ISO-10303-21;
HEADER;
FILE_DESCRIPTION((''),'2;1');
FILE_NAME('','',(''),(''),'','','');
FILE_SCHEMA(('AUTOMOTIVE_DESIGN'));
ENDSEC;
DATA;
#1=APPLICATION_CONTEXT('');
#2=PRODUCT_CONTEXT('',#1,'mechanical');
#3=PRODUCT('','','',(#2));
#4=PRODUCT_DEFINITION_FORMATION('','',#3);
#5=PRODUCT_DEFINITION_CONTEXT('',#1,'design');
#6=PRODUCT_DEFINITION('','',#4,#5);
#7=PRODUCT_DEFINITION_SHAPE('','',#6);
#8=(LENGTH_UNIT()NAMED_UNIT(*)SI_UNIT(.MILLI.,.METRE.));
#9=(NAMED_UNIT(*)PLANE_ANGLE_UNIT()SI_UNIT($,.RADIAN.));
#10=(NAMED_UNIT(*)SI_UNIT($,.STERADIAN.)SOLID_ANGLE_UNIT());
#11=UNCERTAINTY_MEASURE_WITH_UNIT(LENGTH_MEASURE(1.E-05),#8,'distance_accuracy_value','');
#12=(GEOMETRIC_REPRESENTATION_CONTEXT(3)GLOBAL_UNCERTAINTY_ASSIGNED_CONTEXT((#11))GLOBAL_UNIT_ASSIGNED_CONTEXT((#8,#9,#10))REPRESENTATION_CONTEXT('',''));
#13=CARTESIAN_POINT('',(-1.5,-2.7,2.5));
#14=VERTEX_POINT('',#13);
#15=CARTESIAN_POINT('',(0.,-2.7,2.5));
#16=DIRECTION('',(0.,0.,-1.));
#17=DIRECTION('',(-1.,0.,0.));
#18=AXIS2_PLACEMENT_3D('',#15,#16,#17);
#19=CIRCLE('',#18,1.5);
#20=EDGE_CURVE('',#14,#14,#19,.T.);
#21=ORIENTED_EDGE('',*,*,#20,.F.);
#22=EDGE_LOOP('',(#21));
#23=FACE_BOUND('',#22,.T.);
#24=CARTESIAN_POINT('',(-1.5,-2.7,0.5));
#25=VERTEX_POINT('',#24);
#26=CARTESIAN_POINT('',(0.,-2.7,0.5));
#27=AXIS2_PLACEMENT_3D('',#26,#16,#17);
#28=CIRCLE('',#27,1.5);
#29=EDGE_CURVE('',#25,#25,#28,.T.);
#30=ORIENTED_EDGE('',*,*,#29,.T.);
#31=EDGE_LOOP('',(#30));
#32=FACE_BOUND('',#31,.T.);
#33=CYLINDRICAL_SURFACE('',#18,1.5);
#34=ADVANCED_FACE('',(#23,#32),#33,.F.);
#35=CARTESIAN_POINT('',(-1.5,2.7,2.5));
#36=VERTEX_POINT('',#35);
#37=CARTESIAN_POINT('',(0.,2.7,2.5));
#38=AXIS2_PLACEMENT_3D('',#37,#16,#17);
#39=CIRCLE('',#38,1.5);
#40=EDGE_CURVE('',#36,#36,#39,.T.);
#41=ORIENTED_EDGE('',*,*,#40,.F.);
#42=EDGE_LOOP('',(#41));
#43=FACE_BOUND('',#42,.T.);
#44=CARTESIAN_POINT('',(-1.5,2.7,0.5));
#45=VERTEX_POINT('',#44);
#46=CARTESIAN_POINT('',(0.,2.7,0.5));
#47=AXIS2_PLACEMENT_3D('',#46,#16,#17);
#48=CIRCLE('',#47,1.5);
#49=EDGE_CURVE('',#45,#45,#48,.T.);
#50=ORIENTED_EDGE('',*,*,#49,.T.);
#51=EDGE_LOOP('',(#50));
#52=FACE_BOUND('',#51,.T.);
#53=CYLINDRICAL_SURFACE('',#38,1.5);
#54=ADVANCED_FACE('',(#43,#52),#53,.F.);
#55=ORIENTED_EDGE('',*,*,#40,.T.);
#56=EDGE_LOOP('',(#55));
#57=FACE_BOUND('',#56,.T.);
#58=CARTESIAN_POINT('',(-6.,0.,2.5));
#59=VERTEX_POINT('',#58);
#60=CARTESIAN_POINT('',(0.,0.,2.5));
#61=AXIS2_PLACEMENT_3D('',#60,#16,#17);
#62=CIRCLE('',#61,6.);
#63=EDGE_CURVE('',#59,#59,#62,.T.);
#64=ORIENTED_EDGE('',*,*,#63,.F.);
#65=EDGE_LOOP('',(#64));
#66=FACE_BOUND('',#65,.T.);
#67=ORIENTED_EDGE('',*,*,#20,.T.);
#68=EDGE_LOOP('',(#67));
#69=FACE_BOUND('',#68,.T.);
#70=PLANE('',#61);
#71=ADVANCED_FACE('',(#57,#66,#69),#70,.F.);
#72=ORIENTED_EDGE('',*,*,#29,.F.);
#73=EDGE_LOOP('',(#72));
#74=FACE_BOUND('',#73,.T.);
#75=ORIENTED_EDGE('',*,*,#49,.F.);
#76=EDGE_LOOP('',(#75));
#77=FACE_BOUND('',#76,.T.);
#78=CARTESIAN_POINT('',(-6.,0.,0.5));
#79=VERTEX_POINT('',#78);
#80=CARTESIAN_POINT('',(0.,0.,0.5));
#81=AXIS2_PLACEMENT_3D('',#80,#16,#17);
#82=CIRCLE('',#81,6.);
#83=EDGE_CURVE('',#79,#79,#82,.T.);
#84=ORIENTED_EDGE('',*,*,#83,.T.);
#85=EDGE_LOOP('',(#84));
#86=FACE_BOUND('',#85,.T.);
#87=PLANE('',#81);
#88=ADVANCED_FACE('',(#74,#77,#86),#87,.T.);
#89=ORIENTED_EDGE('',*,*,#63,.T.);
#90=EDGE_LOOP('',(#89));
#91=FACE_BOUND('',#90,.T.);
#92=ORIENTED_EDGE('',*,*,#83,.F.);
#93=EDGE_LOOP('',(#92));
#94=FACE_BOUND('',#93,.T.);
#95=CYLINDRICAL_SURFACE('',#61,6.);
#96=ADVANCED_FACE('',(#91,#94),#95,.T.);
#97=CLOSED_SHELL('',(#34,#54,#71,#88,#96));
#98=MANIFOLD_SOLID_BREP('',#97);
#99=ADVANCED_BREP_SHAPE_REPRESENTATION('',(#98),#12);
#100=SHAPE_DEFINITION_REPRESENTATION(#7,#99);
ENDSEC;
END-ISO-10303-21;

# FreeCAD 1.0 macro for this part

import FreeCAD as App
import Part
import Sketcher

V = App.Vector
Q = App.Units.Quantity

doc = App.newDocument("Part")
params = doc.addObject("Spreadsheet::Sheet", "Params")
for row, (alias, value) in enumerate([
    ("sketch1_diameter", "12 mm"),
    ("sketch1_diameter2", "3 mm"),
    ("pad1_length", "2 mm"),
], start=1):
    params.set(f"A{row}", alias)
    params.set(f"B{row}", "=" + value)
    params.setAlias(f"B{row}", alias)

body = doc.addObject("PartDesign::Body", "Body")

sketch1 = body.newObject("Sketcher::SketchObject", "Sketch")
sketch1.AttachmentSupport = (doc.getObject("XY_Plane"), [""])
sketch1.MapMode = "FlatFace"
sketch1.AttachmentOffset = App.Placement(V(0, 0, 0.5), App.Rotation())
sketch1.addGeometry([
    Part.Circle(V(0, 0, 0), V(0, 0, 1), 6),
    Part.Circle(V(0, 2.7, 0), V(0, 0, 1), 1.5),
    Part.Circle(V(0, -2.7, 0), V(0, 0, 1), 1.5),
], False)
sketch1.addConstraint([
    Sketcher.Constraint("Coincident", 0, 3, -1, 1),
    Sketcher.Constraint("Equal", 1, 2),
    Sketcher.Constraint("Symmetric", 1, 3, 2, 3, -1, 1),
    Sketcher.Constraint("PointOnObject", 1, 3, -2),
    Sketcher.Constraint("Diameter", 0, Q("12 mm")),
    Sketcher.Constraint("Diameter", 1, Q("3 mm")),
    Sketcher.Constraint("DistanceY", -1, 1, 1, 3, Q("2.7 mm")),
])
sketch1.setExpression("Constraints[4]", "Params.sketch1_diameter")
sketch1.setExpression("Constraints[5]", "Params.sketch1_diameter2")
pad1 = body.newObject("PartDesign::Pad", "Pad")
pad1.Profile = sketch1
pad1.setExpression("Length", "Params.pad1_length")

doc.recompute()
